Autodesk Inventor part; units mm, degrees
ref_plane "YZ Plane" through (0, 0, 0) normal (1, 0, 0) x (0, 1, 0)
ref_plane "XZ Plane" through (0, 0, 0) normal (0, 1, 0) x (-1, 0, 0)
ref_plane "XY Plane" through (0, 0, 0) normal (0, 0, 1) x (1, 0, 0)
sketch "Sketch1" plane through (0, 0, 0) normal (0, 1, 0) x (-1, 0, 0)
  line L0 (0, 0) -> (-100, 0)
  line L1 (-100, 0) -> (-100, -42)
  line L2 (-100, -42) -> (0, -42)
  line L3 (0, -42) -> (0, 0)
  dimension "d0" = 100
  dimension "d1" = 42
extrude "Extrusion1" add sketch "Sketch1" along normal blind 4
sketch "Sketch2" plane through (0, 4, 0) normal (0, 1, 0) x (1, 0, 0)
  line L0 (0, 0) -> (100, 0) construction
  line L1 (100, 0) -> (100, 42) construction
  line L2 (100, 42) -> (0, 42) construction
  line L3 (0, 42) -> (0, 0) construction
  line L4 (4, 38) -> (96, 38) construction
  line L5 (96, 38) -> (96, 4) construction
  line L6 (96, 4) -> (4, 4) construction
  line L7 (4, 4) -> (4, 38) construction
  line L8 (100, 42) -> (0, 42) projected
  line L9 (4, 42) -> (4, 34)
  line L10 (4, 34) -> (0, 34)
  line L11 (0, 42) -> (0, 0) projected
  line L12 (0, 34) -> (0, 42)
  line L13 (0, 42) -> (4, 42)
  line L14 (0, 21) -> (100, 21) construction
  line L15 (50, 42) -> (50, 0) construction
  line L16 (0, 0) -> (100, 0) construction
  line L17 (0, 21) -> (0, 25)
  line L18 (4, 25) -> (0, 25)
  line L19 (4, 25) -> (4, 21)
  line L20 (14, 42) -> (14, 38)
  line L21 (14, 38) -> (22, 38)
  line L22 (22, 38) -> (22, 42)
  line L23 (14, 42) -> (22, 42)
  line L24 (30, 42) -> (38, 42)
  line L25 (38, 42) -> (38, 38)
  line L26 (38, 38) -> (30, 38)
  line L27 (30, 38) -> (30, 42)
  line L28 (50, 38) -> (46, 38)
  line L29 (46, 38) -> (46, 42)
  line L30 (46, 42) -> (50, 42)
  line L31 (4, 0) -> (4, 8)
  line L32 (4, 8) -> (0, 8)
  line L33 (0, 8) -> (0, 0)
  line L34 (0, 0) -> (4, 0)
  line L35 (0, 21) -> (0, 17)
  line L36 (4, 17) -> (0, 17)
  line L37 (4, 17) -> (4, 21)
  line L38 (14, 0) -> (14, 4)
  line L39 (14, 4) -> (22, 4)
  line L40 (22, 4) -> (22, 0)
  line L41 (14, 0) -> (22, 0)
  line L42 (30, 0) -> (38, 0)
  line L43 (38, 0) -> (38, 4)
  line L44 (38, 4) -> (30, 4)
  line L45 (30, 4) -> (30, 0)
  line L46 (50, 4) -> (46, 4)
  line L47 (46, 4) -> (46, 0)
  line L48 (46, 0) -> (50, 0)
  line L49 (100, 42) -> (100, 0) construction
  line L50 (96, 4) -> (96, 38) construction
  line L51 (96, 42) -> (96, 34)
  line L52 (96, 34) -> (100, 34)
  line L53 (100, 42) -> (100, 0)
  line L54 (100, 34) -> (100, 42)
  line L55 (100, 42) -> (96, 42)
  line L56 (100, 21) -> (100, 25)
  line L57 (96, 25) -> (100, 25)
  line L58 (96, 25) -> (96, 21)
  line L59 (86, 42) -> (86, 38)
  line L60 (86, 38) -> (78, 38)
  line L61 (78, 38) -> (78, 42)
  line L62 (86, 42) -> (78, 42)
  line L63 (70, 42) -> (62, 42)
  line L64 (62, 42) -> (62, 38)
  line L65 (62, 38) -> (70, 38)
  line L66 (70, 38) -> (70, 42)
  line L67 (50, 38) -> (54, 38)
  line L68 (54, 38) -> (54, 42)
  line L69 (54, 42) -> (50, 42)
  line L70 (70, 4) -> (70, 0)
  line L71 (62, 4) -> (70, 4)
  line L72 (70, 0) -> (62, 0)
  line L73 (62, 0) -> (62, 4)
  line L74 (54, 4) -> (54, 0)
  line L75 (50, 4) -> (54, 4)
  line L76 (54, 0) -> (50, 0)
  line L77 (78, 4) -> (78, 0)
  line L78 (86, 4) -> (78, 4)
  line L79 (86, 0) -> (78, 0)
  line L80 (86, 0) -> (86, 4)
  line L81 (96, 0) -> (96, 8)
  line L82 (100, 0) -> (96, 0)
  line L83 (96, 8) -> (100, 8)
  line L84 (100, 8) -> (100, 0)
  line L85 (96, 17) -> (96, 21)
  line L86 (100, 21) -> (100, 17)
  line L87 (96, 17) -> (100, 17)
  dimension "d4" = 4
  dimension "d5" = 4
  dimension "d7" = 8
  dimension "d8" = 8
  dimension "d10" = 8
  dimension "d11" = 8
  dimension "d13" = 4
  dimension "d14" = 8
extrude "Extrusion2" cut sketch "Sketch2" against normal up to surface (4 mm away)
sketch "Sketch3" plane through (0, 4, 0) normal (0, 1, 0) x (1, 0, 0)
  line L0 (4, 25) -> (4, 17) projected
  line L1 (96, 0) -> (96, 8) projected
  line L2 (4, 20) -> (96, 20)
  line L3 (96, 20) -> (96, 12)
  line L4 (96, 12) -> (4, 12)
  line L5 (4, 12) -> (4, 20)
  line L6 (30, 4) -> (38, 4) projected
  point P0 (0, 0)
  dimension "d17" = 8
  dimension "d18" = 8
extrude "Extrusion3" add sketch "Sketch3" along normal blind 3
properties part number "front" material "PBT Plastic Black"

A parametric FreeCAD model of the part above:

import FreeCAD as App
import Part
import Sketcher
from FreeCAD import Vector

doc = App.newDocument("Part")
body = doc.addObject("PartDesign::Body", "Body")

# Sketch on XZ plane
sketch1 = body.newObject("Sketcher::SketchObject", "Sketch")
sketch1.AttachmentSupport = (doc.getObject("XZ_Plane"), [""])
sketch1.MapMode = "FlatFace"
sketch1.addGeometry([
    Part.LineSegment(Vector(0, -42, 0), Vector(0, 0, 0)),
    Part.LineSegment(Vector(0, 0, 0), Vector(100, 0, 0)),
    Part.LineSegment(Vector(100, 0, 0), Vector(100, -42, 0)),
    Part.LineSegment(Vector(100, -42, 0), Vector(0, -42, 0)),
], False)
sketch1.addConstraint([
    Sketcher.Constraint("Coincident", 0, 2, 1, 1),
    Sketcher.Constraint("Coincident", 1, 2, 2, 1),
    Sketcher.Constraint("Coincident", 2, 2, 3, 1),
    Sketcher.Constraint("Coincident", 3, 2, 0, 1),
    Sketcher.Constraint("Vertical", 0),
    Sketcher.Constraint("Horizontal", 1),
    Sketcher.Constraint("Vertical", 2),
    Sketcher.Constraint("Horizontal", 3),
    Sketcher.Constraint("Coincident", 0, 2, -1, 1),
    Sketcher.Constraint("DistanceX", 1, 1, 1, 2, 100.0),
    Sketcher.Constraint("DistanceY", 0, 1, 0, 2, 42.0),
])
pad1 = body.newObject("PartDesign::Pad", "Pad")
pad1.Profile = sketch1
pad1.Length = 4
pad1.Reversed = True

# Sketch on XZ plane
sketch2 = body.newObject("Sketcher::SketchObject", "Sketch001")
sketch2.AttachmentSupport = (doc.getObject("XZ_Plane"), [""])
sketch2.MapMode = "FlatFace"
sketch2.AttachmentOffset = App.Placement(Vector(0, 0, -4), App.Rotation())
sketch2.addGeometry([
    Part.LineSegment(Vector(100, -34, 0), Vector(100, -42, 0)),  # 0
    Part.LineSegment(Vector(100, -42, 0), Vector(96, -42, 0)),  # 1
    Part.LineSegment(Vector(96, -42, 0), Vector(96, -34, 0)),  # 2
    Part.LineSegment(Vector(96, -34, 0), Vector(100, -34, 0)),  # 3
    Part.LineSegment(Vector(100, 0, 0), Vector(100, -8, 0)),  # 4
    Part.LineSegment(Vector(100, -8, 0), Vector(96, -8, 0)),  # 5
    Part.LineSegment(Vector(96, -8, 0), Vector(96, 0, 0)),  # 6
    Part.LineSegment(Vector(96, 0, 0), Vector(100, 0, 0)),  # 7
    Part.LineSegment(Vector(100, -17, 0), Vector(100, -25, 0)),  # 8
    Part.LineSegment(Vector(100, -25, 0), Vector(96, -25, 0)),  # 9
    Part.LineSegment(Vector(96, -25, 0), Vector(96, -17, 0)),  # 10
    Part.LineSegment(Vector(96, -17, 0), Vector(100, -17, 0)),  # 11
    Part.LineSegment(Vector(4, -8, 0), Vector(0, -8, 0)),  # 12
    Part.LineSegment(Vector(0, -8, 0), Vector(0, 0, 0)),  # 13
    Part.LineSegment(Vector(0, 0, 0), Vector(4, 0, 0)),  # 14
    Part.LineSegment(Vector(4, 0, 0), Vector(4, -8, 0)),  # 15
    Part.LineSegment(Vector(4, -25, 0), Vector(0, -25, 0)),  # 16
    Part.LineSegment(Vector(0, -25, 0), Vector(0, -17, 0)),  # 17
    Part.LineSegment(Vector(0, -17, 0), Vector(4, -17, 0)),  # 18
    Part.LineSegment(Vector(4, -17, 0), Vector(4, -25, 0)),  # 19
    Part.LineSegment(Vector(4, -34, 0), Vector(4, -42, 0)),  # 20
    Part.LineSegment(Vector(4, -42, 0), Vector(0, -42, 0)),  # 21
    Part.LineSegment(Vector(0, -42, 0), Vector(0, -34, 0)),  # 22
    Part.LineSegment(Vector(0, -34, 0), Vector(4, -34, 0)),  # 23
    Part.LineSegment(Vector(22, -38, 0), Vector(22, -42, 0)),  # 24
    Part.LineSegment(Vector(22, -42, 0), Vector(14, -42, 0)),  # 25
    Part.LineSegment(Vector(14, -42, 0), Vector(14, -38, 0)),  # 26
    Part.LineSegment(Vector(14, -38, 0), Vector(22, -38, 0)),  # 27
    Part.LineSegment(Vector(38, -38, 0), Vector(38, -42, 0)),  # 28
    Part.LineSegment(Vector(38, -42, 0), Vector(30, -42, 0)),  # 29
    Part.LineSegment(Vector(30, -42, 0), Vector(30, -38, 0)),  # 30
    Part.LineSegment(Vector(30, -38, 0), Vector(38, -38, 0)),  # 31
    Part.LineSegment(Vector(54, -38, 0), Vector(54, -42, 0)),  # 32
    Part.LineSegment(Vector(54, -42, 0), Vector(46, -42, 0)),  # 33
    Part.LineSegment(Vector(46, -42, 0), Vector(46, -38, 0)),  # 34
    Part.LineSegment(Vector(46, -38, 0), Vector(54, -38, 0)),  # 35
    Part.LineSegment(Vector(70, -38, 0), Vector(70, -42, 0)),  # 36
    Part.LineSegment(Vector(70, -42, 0), Vector(62, -42, 0)),  # 37
    Part.LineSegment(Vector(62, -42, 0), Vector(62, -38, 0)),  # 38
    Part.LineSegment(Vector(62, -38, 0), Vector(70, -38, 0)),  # 39
    Part.LineSegment(Vector(86, -38, 0), Vector(86, -42, 0)),  # 40
    Part.LineSegment(Vector(86, -42, 0), Vector(78, -42, 0)),  # 41
    Part.LineSegment(Vector(78, -42, 0), Vector(78, -38, 0)),  # 42
    Part.LineSegment(Vector(78, -38, 0), Vector(86, -38, 0)),  # 43
    Part.LineSegment(Vector(14, -4, 0), Vector(14, 0, 0)),  # 44
    Part.LineSegment(Vector(14, 0, 0), Vector(22, 0, 0)),  # 45
    Part.LineSegment(Vector(22, 0, 0), Vector(22, -4, 0)),  # 46
    Part.LineSegment(Vector(22, -4, 0), Vector(14, -4, 0)),  # 47
    Part.LineSegment(Vector(30, -4, 0), Vector(30, 0, 0)),  # 48
    Part.LineSegment(Vector(30, 0, 0), Vector(38, 0, 0)),  # 49
    Part.LineSegment(Vector(38, 0, 0), Vector(38, -4, 0)),  # 50
    Part.LineSegment(Vector(38, -4, 0), Vector(30, -4, 0)),  # 51
    Part.LineSegment(Vector(54, -4, 0), Vector(46, -4, 0)),  # 52
    Part.LineSegment(Vector(46, -4, 0), Vector(46, 0, 0)),  # 53
    Part.LineSegment(Vector(46, 0, 0), Vector(54, 0, 0)),  # 54
    Part.LineSegment(Vector(54, 0, 0), Vector(54, -4, 0)),  # 55
    Part.LineSegment(Vector(70, 0, 0), Vector(70, -4, 0)),  # 56
    Part.LineSegment(Vector(70, -4, 0), Vector(62, -4, 0)),  # 57
    Part.LineSegment(Vector(62, -4, 0), Vector(62, 0, 0)),  # 58
    Part.LineSegment(Vector(62, 0, 0), Vector(70, 0, 0)),  # 59
    Part.LineSegment(Vector(86, -4, 0), Vector(78, -4, 0)),  # 60
    Part.LineSegment(Vector(78, -4, 0), Vector(78, 0, 0)),  # 61
    Part.LineSegment(Vector(78, 0, 0), Vector(86, 0, 0)),  # 62
    Part.LineSegment(Vector(86, 0, 0), Vector(86, -4, 0)),  # 63
], False)
sketch2.addConstraint([
    Sketcher.Constraint("Coincident", 0, 2, 1, 1),
    Sketcher.Constraint("Coincident", 1, 2, 2, 1),
    Sketcher.Constraint("Coincident", 2, 2, 3, 1),
    Sketcher.Constraint("Coincident", 3, 2, 0, 1),
    Sketcher.Constraint("Coincident", 4, 2, 5, 1),
    Sketcher.Constraint("Coincident", 5, 2, 6, 1),
    Sketcher.Constraint("Coincident", 6, 2, 7, 1),
    Sketcher.Constraint("Coincident", 7, 2, 4, 1),
    Sketcher.Constraint("Coincident", 8, 2, 9, 1),
    Sketcher.Constraint("Coincident", 9, 2, 10, 1),
    Sketcher.Constraint("Coincident", 10, 2, 11, 1),
    Sketcher.Constraint("Coincident", 11, 2, 8, 1),
    Sketcher.Constraint("Coincident", 12, 2, 13, 1),
    Sketcher.Constraint("Coincident", 13, 2, 14, 1),
    Sketcher.Constraint("Coincident", 14, 2, 15, 1),
    Sketcher.Constraint("Coincident", 15, 2, 12, 1),
    Sketcher.Constraint("Coincident", 16, 2, 17, 1),
    Sketcher.Constraint("Coincident", 17, 2, 18, 1),
    Sketcher.Constraint("Coincident", 18, 2, 19, 1),
    Sketcher.Constraint("Coincident", 19, 2, 16, 1),
    Sketcher.Constraint("Coincident", 20, 2, 21, 1),
    Sketcher.Constraint("Coincident", 21, 2, 22, 1),
    Sketcher.Constraint("Coincident", 22, 2, 23, 1),
    Sketcher.Constraint("Coincident", 23, 2, 20, 1),
    Sketcher.Constraint("Coincident", 24, 2, 25, 1),
    Sketcher.Constraint("Coincident", 25, 2, 26, 1),
    Sketcher.Constraint("Coincident", 26, 2, 27, 1),
    Sketcher.Constraint("Coincident", 27, 2, 24, 1),
    Sketcher.Constraint("Coincident", 28, 2, 29, 1),
    Sketcher.Constraint("Coincident", 29, 2, 30, 1),
    Sketcher.Constraint("Coincident", 30, 2, 31, 1),
    Sketcher.Constraint("Coincident", 31, 2, 28, 1),
    Sketcher.Constraint("Coincident", 32, 2, 33, 1),
    Sketcher.Constraint("Coincident", 33, 2, 34, 1),
    Sketcher.Constraint("Coincident", 34, 2, 35, 1),
    Sketcher.Constraint("Coincident", 35, 2, 32, 1),
    Sketcher.Constraint("Coincident", 36, 2, 37, 1),
    Sketcher.Constraint("Coincident", 37, 2, 38, 1),
    Sketcher.Constraint("Coincident", 38, 2, 39, 1),
    Sketcher.Constraint("Coincident", 39, 2, 36, 1),
    Sketcher.Constraint("Coincident", 40, 2, 41, 1),
    Sketcher.Constraint("Coincident", 41, 2, 42, 1),
    Sketcher.Constraint("Coincident", 42, 2, 43, 1),
    Sketcher.Constraint("Coincident", 43, 2, 40, 1),
    Sketcher.Constraint("Coincident", 44, 2, 45, 1),
    Sketcher.Constraint("Coincident", 45, 2, 46, 1),
    Sketcher.Constraint("Coincident", 46, 2, 47, 1),
    Sketcher.Constraint("Coincident", 47, 2, 44, 1),
    Sketcher.Constraint("Coincident", 48, 2, 49, 1),
    Sketcher.Constraint("Coincident", 49, 2, 50, 1),
    Sketcher.Constraint("Coincident", 50, 2, 51, 1),
    Sketcher.Constraint("Coincident", 51, 2, 48, 1),
    Sketcher.Constraint("Coincident", 52, 2, 53, 1),
    Sketcher.Constraint("Coincident", 53, 2, 54, 1),
    Sketcher.Constraint("Coincident", 54, 2, 55, 1),
    Sketcher.Constraint("Coincident", 55, 2, 52, 1),
    Sketcher.Constraint("Coincident", 56, 2, 57, 1),
    Sketcher.Constraint("Coincident", 57, 2, 58, 1),
    Sketcher.Constraint("Coincident", 58, 2, 59, 1),
    Sketcher.Constraint("Coincident", 59, 2, 56, 1),
    Sketcher.Constraint("Coincident", 60, 2, 61, 1),
    Sketcher.Constraint("Coincident", 61, 2, 62, 1),
    Sketcher.Constraint("Coincident", 62, 2, 63, 1),
    Sketcher.Constraint("Coincident", 63, 2, 60, 1),
    Sketcher.Constraint("Vertical", 0),
    Sketcher.Constraint("Horizontal", 1),
    Sketcher.Constraint("Vertical", 2),
    Sketcher.Constraint("Horizontal", 3),
    Sketcher.Constraint("Vertical", 4),
    Sketcher.Constraint("Horizontal", 5),
    Sketcher.Constraint("Vertical", 6),
    Sketcher.Constraint("Horizontal", 7),
    Sketcher.Constraint("Vertical", 8),
    Sketcher.Constraint("Horizontal", 9),
    Sketcher.Constraint("Vertical", 10),
    Sketcher.Constraint("Horizontal", 11),
    Sketcher.Constraint("Horizontal", 12),
    Sketcher.Constraint("Vertical", 13),
    Sketcher.Constraint("Horizontal", 14),
    Sketcher.Constraint("Vertical", 15),
    Sketcher.Constraint("Horizontal", 16),
    Sketcher.Constraint("Vertical", 17),
    Sketcher.Constraint("Horizontal", 18),
    Sketcher.Constraint("Vertical", 19),
    Sketcher.Constraint("Vertical", 20),
    Sketcher.Constraint("Horizontal", 21),
    Sketcher.Constraint("Vertical", 22),
    Sketcher.Constraint("Horizontal", 23),
    Sketcher.Constraint("Vertical", 24),
    Sketcher.Constraint("Horizontal", 25),
    Sketcher.Constraint("Vertical", 26),
    Sketcher.Constraint("Horizontal", 27),
    Sketcher.Constraint("Vertical", 28),
    Sketcher.Constraint("Horizontal", 29),
    Sketcher.Constraint("Vertical", 30),
    Sketcher.Constraint("Horizontal", 31),
    Sketcher.Constraint("Vertical", 32),
    Sketcher.Constraint("Horizontal", 33),
    Sketcher.Constraint("Vertical", 34),
    Sketcher.Constraint("Horizontal", 35),
    Sketcher.Constraint("Vertical", 36),
    Sketcher.Constraint("Horizontal", 37),
    Sketcher.Constraint("Vertical", 38),
    Sketcher.Constraint("Horizontal", 39),
    Sketcher.Constraint("Vertical", 40),
    Sketcher.Constraint("Horizontal", 41),
    Sketcher.Constraint("Vertical", 42),
    Sketcher.Constraint("Horizontal", 43),
    Sketcher.Constraint("Vertical", 44),
    Sketcher.Constraint("Horizontal", 45),
    Sketcher.Constraint("Vertical", 46),
    Sketcher.Constraint("Horizontal", 47),
    Sketcher.Constraint("Vertical", 48),
    Sketcher.Constraint("Horizontal", 49),
    Sketcher.Constraint("Vertical", 50),
    Sketcher.Constraint("Horizontal", 51),
    Sketcher.Constraint("Horizontal", 52),
    Sketcher.Constraint("Vertical", 53),
    Sketcher.Constraint("Horizontal", 54),
    Sketcher.Constraint("Vertical", 55),
    Sketcher.Constraint("Vertical", 56),
    Sketcher.Constraint("Horizontal", 57),
    Sketcher.Constraint("Vertical", 58),
    Sketcher.Constraint("Horizontal", 59),
    Sketcher.Constraint("Horizontal", 60),
    Sketcher.Constraint("Vertical", 61),
    Sketcher.Constraint("Horizontal", 62),
    Sketcher.Constraint("Vertical", 63),
    Sketcher.Constraint("Coincident", 13, 2, -1, 1),
    Sketcher.Constraint("PointOnObject", 6, 2, -1),
    Sketcher.Constraint("PointOnObject", 16, 2, -2),
    Sketcher.Constraint("PointOnObject", 21, 2, -2),
    Sketcher.Constraint("PointOnObject", 44, 2, -1),
    Sketcher.Constraint("PointOnObject", 48, 2, -1),
    Sketcher.Constraint("PointOnObject", 53, 2, -1),
    Sketcher.Constraint("PointOnObject", 58, 2, -1),
    Sketcher.Constraint("PointOnObject", 61, 2, -1),
    Sketcher.Constraint("Horizontal", 5, 2, 12, 2),
    Sketcher.Constraint("Horizontal", 9, 2, 16, 2),
    Sketcher.Constraint("Horizontal", 11, 2, 17, 2),
    Sketcher.Constraint("Horizontal", 1, 2, 20, 2),
    Sketcher.Constraint("Horizontal", 3, 2, 22, 2),
    Sketcher.Constraint("Horizontal", 21, 2, 24, 2),
    Sketcher.Constraint("Horizontal", 25, 2, 28, 2),
    Sketcher.Constraint("Horizontal", 27, 2, 30, 2),
    Sketcher.Constraint("Horizontal", 29, 2, 32, 2),
    Sketcher.Constraint("Horizontal", 31, 2, 34, 2),
    Sketcher.Constraint("Horizontal", 33, 2, 36, 2),
    Sketcher.Constraint("Horizontal", 35, 2, 38, 2),
    Sketcher.Constraint("Horizontal", 37, 2, 40, 2),
    Sketcher.Constraint("Horizontal", 39, 2, 42, 2),
    Sketcher.Constraint("Horizontal", 47, 2, 50, 2),
    Sketcher.Constraint("Horizontal", 51, 2, 52, 2),
    Sketcher.Constraint("Horizontal", 55, 2, 56, 2),
    Sketcher.Constraint("Horizontal", 57, 2, 60, 2),
    Sketcher.Constraint("Vertical", 3, 2, 4, 2),
    Sketcher.Constraint("Vertical", 2, 2, 5, 2),
    Sketcher.Constraint("Vertical", 7, 2, 8, 2),
    Sketcher.Constraint("Vertical", 6, 2, 9, 2),
    Sketcher.Constraint("Vertical", 15, 2, 18, 2),
    Sketcher.Constraint("Vertical", 19, 2, 20, 2),
    Sketcher.Constraint("Vertical", 26, 2, 44, 2),
    Sketcher.Constraint("Vertical", 27, 2, 45, 2),
    Sketcher.Constraint("Vertical", 30, 2, 48, 2),
    Sketcher.Constraint("Vertical", 31, 2, 49, 2),
    Sketcher.Constraint("Vertical", 34, 2, 52, 2),
    Sketcher.Constraint("Vertical", 35, 2, 54, 2),
    Sketcher.Constraint("Vertical", 39, 2, 56, 2),
    Sketcher.Constraint("Vertical", 38, 2, 57, 2),
    Sketcher.Constraint("Vertical", 42, 2, 60, 2),
    Sketcher.Constraint("Vertical", 43, 2, 62, 2),
    Sketcher.Constraint("Equal", 11, 12),
    Sketcher.Constraint("Equal", 27, 29),
    Sketcher.Constraint("Equal", 31, 33),
    Sketcher.Constraint("Equal", 35, 37),
    Sketcher.Constraint("Equal", 39, 41),
    Sketcher.Constraint("Equal", 62, 0),
    Sketcher.Constraint("Equal", 2, 4),
    Sketcher.Constraint("Equal", 6, 8),
    Sketcher.Constraint("Equal", 23, 24),
    Sketcher.Constraint("Equal", 42, 44),
    Sketcher.Constraint("DistanceX", 1, 2, 1, 1, 4.0),
    Sketcher.Constraint("DistanceX", 25, 2, 25, 1, 8.0),
    Sketcher.Constraint("DistanceX", -1, 1, 0, 2, 100.0),
    Sketcher.Constraint("DistanceY", 0, 2, -1, 1, 42.0),
    Sketcher.Constraint("DistanceY", 8, 2, -1, 1, 25.0),
    Sketcher.Constraint("DistanceX", -1, 1, 24, 2, 22.0),
    Sketcher.Constraint("DistanceX", -1, 1, 28, 2, 38.0),
    Sketcher.Constraint("DistanceX", -1, 1, 32, 2, 54.0),
    Sketcher.Constraint("DistanceX", -1, 1, 36, 2, 70.0),
    Sketcher.Constraint("DistanceX", -1, 1, 40, 2, 86.0),
])
pocket1 = body.newObject("PartDesign::Pocket", "Pocket")
pocket1.Profile = sketch2
pocket1.Length = 4
pocket1.Reversed = True

# Sketch on XZ plane
sketch3 = body.newObject("Sketcher::SketchObject", "Sketch002")
sketch3.AttachmentSupport = (doc.getObject("XZ_Plane"), [""])
sketch3.MapMode = "FlatFace"
sketch3.AttachmentOffset = App.Placement(Vector(0, 0, -4), App.Rotation())
sketch3.addGeometry([
    Part.LineSegment(Vector(96, -20, 0), Vector(4, -20, 0)),
    Part.LineSegment(Vector(4, -20, 0), Vector(4, -12, 0)),
    Part.LineSegment(Vector(4, -12, 0), Vector(96, -12, 0)),
    Part.LineSegment(Vector(96, -12, 0), Vector(96, -20, 0)),
], False)
sketch3.addConstraint([
    Sketcher.Constraint("Coincident", 0, 2, 1, 1),
    Sketcher.Constraint("Coincident", 1, 2, 2, 1),
    Sketcher.Constraint("Coincident", 2, 2, 3, 1),
    Sketcher.Constraint("Coincident", 3, 2, 0, 1),
    Sketcher.Constraint("Horizontal", 0),
    Sketcher.Constraint("Vertical", 1),
    Sketcher.Constraint("Horizontal", 2),
    Sketcher.Constraint("Vertical", 3),
    Sketcher.Constraint("DistanceY", 1, 1, 1, 2, 8.0),
    Sketcher.Constraint("DistanceX", 0, 2, 0, 1, 92.0),
    Sketcher.Constraint("DistanceX", -1, 1, 0, 2, 4.0),
    Sketcher.Constraint("DistanceY", 0, 2, -1, 1, 20.0),
])
pad2 = body.newObject("PartDesign::Pad", "Pad001")
pad2.Profile = sketch3
pad2.Length = 3
pad2.Reversed = True

doc.recompute()
